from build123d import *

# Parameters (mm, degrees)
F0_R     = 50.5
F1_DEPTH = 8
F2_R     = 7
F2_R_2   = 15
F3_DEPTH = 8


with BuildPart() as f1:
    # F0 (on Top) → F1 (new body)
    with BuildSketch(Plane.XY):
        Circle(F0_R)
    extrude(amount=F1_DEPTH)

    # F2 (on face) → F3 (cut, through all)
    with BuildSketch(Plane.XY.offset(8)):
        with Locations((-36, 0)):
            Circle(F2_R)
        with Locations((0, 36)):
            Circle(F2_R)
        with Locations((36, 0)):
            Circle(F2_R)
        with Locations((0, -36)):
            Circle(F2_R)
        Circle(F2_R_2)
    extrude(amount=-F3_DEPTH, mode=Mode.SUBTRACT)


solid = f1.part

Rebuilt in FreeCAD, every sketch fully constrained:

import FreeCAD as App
import Part
import Sketcher
Q = App.Units.Quantity

doc = App.newDocument("Part")
body = doc.addObject("PartDesign::Body", "Body")

# Sketch on XY plane
sketch1 = doc.addObject("Sketcher::SketchObject", "Sketch")
body.addObject(sketch1)
sketch1.AttachmentSupport = (doc.XY_Plane, [""])
sketch1.MapMode = "FlatFace"
sketch1.addGeometry(Part.Circle(App.Vector(0, 0, 0), App.Vector(0, 0, 1), 50), False)
sketch1.addConstraint(Sketcher.Constraint("Coincident", 0, 3, -1, 1))
sketch1.addConstraint(Sketcher.Constraint("Diameter", 0, Q("101 mm")))
pad1 = doc.addObject("PartDesign::Pad", "Pad")
body.addObject(pad1)
pad1.Profile = sketch1
pad1.Length = 8

# Sketch on XY plane
sketch2 = doc.addObject("Sketcher::SketchObject", "Sketch001")
body.addObject(sketch2)
sketch2.AttachmentSupport = (doc.XY_Plane, [""])
sketch2.MapMode = "FlatFace"
sketch2.AttachmentOffset = App.Placement(App.Vector(0, 0, 8), App.Rotation())
sketch2.addGeometry(Part.Circle(App.Vector(-36, 0, 0), App.Vector(0, 0, 1), 7), False)
sketch2.addGeometry(Part.Circle(App.Vector(0, 36, 0), App.Vector(0, 0, 1), 7), False)
sketch2.addGeometry(Part.Circle(App.Vector(36, 0, 0), App.Vector(0, 0, 1), 7), False)
sketch2.addGeometry(Part.Circle(App.Vector(0, -36, 0), App.Vector(0, 0, 1), 7), False)
sketch2.addGeometry(Part.Circle(App.Vector(0, 0, 0), App.Vector(0, 0, 1), 15), False)
sketch2.addConstraint(Sketcher.Constraint("Coincident", 4, 3, -1, 1))
sketch2.addConstraint(Sketcher.Constraint("Equal", 0, 1))
sketch2.addConstraint(Sketcher.Constraint("Equal", 1, 2))
sketch2.addConstraint(Sketcher.Constraint("Equal", 2, 3))
sketch2.addConstraint(Sketcher.Constraint("Symmetric", 0, 3, 2, 3, -1, 1))
sketch2.addConstraint(Sketcher.Constraint("Symmetric", 1, 3, 3, 3, -1, 1))
sketch2.addConstraint(Sketcher.Constraint("PointOnObject", 0, 3, -1))
sketch2.addConstraint(Sketcher.Constraint("PointOnObject", 1, 3, -2))
sketch2.addConstraint(Sketcher.Constraint("Diameter", 0, Q("14 mm")))
sketch2.addConstraint(Sketcher.Constraint("Diameter", 4, Q("30 mm")))
sketch2.addConstraint(Sketcher.Constraint("DistanceX", 0, 3, -1, 1, Q("36 mm")))
sketch2.addConstraint(Sketcher.Constraint("DistanceY", -1, 1, 1, 3, Q("36 mm")))
pocket1 = doc.addObject("PartDesign::Pocket", "Pocket")
body.addObject(pocket1)
pocket1.Profile = sketch2
pocket1.Type = "ThroughAll"

doc.recompute()
